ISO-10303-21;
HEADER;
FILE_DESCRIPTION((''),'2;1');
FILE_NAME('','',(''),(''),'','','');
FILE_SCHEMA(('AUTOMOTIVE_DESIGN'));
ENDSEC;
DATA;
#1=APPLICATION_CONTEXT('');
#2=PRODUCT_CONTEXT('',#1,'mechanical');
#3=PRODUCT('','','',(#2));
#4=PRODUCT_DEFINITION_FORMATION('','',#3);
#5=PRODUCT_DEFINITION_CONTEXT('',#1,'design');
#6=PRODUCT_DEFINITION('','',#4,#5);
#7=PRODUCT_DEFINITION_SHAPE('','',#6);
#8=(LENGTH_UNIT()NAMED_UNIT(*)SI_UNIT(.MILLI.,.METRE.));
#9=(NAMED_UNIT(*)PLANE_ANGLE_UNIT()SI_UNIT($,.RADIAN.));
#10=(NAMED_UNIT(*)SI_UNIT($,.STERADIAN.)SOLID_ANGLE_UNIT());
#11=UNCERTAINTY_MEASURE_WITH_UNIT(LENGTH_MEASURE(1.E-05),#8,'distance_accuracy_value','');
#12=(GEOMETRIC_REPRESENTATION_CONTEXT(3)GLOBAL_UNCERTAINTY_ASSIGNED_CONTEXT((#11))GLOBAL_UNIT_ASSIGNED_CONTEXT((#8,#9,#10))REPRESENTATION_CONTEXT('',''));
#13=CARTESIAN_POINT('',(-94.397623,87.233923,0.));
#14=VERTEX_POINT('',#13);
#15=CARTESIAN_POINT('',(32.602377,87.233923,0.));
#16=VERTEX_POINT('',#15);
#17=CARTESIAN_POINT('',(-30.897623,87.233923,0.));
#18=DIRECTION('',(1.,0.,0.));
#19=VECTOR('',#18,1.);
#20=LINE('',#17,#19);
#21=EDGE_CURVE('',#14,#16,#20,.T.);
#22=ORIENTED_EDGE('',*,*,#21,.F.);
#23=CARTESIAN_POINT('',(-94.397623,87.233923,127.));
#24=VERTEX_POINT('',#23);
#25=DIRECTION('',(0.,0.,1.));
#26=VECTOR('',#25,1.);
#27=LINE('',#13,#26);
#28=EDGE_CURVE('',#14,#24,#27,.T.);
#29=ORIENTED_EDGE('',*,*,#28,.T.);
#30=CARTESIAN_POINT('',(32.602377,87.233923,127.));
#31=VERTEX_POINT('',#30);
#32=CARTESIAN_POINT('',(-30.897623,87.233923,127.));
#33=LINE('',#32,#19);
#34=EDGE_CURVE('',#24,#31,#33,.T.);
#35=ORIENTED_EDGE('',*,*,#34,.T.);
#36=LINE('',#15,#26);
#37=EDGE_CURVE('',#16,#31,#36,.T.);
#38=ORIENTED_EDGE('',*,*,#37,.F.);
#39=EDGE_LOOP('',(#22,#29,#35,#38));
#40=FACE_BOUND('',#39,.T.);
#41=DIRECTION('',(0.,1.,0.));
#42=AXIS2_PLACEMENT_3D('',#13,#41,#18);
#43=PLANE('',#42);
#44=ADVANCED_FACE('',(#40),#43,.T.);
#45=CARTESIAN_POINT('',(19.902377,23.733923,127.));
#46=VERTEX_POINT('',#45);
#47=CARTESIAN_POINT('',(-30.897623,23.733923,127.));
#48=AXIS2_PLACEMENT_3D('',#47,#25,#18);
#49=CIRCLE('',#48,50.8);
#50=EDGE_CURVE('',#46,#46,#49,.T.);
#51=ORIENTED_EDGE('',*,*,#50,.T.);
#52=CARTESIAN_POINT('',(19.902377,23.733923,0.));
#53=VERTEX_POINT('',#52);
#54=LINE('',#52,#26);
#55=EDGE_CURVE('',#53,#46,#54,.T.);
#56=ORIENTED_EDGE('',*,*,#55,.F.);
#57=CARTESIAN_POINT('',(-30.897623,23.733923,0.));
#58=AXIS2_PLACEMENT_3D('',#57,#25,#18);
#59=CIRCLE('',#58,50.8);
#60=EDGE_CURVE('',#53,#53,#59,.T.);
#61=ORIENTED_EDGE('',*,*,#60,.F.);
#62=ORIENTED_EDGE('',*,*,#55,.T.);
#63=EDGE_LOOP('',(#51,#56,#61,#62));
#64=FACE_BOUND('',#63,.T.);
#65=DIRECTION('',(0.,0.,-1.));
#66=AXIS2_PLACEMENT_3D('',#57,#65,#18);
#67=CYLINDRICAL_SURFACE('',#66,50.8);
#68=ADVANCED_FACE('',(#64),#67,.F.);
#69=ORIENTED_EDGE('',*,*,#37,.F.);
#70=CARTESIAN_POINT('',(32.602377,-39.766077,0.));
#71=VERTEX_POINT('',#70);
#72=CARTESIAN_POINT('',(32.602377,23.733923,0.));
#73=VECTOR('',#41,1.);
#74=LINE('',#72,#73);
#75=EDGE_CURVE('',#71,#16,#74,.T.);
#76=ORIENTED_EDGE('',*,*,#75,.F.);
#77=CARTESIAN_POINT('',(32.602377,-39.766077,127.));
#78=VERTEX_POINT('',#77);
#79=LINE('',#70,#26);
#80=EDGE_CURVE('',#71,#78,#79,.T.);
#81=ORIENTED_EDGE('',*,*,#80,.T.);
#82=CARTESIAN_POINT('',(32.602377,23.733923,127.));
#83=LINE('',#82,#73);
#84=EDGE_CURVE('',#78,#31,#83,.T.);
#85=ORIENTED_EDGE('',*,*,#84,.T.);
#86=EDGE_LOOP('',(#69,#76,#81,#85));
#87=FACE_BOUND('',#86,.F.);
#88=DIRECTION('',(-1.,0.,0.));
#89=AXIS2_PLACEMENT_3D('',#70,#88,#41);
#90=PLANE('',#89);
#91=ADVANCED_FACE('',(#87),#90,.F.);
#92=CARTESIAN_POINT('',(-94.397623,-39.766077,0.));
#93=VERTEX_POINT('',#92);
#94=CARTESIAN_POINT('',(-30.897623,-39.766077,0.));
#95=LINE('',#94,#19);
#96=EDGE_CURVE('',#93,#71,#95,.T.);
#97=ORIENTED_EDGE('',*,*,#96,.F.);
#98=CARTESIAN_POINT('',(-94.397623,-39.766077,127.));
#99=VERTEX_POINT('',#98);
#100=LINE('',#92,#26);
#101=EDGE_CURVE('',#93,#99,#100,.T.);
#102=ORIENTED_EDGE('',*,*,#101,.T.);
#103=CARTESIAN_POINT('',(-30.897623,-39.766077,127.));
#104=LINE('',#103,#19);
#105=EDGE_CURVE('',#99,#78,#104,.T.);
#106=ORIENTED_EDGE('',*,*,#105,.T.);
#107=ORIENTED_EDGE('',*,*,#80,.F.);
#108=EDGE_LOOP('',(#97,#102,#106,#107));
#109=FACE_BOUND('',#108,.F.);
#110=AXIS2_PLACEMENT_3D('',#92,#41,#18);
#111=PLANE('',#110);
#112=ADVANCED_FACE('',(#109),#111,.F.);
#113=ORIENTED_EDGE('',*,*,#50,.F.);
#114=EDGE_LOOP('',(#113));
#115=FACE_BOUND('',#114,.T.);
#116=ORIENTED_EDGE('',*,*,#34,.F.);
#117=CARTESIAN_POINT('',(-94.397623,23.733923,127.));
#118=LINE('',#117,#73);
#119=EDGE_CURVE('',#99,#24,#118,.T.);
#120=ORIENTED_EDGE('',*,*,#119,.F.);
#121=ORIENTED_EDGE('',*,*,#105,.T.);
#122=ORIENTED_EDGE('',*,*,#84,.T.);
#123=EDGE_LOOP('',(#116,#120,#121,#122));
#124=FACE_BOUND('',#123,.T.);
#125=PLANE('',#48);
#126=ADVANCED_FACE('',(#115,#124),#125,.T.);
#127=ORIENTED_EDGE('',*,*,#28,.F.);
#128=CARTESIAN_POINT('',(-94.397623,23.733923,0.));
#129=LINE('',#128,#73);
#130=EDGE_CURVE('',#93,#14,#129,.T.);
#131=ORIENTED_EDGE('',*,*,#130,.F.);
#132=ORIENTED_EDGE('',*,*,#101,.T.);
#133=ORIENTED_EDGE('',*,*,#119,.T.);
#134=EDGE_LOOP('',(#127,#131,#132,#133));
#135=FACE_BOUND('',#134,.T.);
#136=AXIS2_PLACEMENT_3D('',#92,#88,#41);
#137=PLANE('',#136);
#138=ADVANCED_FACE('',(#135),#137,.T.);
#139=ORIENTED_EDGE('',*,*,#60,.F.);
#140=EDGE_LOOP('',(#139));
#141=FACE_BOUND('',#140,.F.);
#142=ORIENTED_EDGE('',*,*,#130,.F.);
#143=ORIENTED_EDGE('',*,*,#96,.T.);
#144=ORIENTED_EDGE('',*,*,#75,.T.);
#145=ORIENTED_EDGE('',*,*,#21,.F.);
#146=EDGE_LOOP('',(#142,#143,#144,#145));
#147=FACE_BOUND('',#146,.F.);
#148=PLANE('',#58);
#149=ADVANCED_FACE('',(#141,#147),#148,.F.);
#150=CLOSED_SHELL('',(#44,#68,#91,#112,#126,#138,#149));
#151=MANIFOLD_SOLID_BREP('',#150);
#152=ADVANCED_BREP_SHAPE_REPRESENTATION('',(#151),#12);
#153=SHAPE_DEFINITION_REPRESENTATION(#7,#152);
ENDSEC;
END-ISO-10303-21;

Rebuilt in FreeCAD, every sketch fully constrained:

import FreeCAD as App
import Part
import Sketcher

V = App.Vector
Q = App.Units.Quantity

doc = App.newDocument("Part")
body = doc.addObject("PartDesign::Body", "Body")

# Sketch on XY plane
sketch1 = doc.addObject("Sketcher::SketchObject", "Sketch")
body.addObject(sketch1)
sketch1.AttachmentSupport = (doc.XY_Plane, [""])
sketch1.MapMode = "FlatFace"
sketch1.addGeometry([
    Part.LineSegment(V(-94, 87, 0), V(-94, -40, 0)),  # 0
    Part.LineSegment(V(-94, -40, 0), V(33, -40, 0)),  # 1
    Part.LineSegment(V(33, -40, 0), V(33, 87, 0)),  # 2
    Part.LineSegment(V(33, 87, 0), V(-94, 87, 0)),  # 3
    Part.Circle(V(-31, 24, 0), V(0, 0, 1), 51),  # 4
], False)
sketch1.addConstraint([
    Sketcher.Constraint("Coincident", 0, 2, 1, 1),
    Sketcher.Constraint("Coincident", 1, 2, 2, 1),
    Sketcher.Constraint("Coincident", 2, 2, 3, 1),
    Sketcher.Constraint("Coincident", 3, 2, 0, 1),
    Sketcher.Constraint("Vertical", 0),
    Sketcher.Constraint("Horizontal", 1),
    Sketcher.Constraint("Vertical", 2),
    Sketcher.Constraint("Horizontal", 3),
    Sketcher.Constraint("Equal", 3, 0),
    Sketcher.Constraint("Diameter", 4, Q("4 in")),
    Sketcher.Constraint("DistanceX", 1, 1, 1, 2, Q("5 in")),
    Sketcher.Constraint("DistanceX", 0, 2, 4, 3, Q("2.5 in")),
    Sketcher.Constraint("DistanceY", 0, 2, 4, 3, Q("2.5 in")),
    Sketcher.Constraint("DistanceX", 4, 3, -1, 1, Q("30.897623 mm")),
    Sketcher.Constraint("DistanceY", -1, 1, 4, 3, Q("23.733923 mm")),
])
pad1 = doc.addObject("PartDesign::Pad", "Pad")
body.addObject(pad1)
pad1.Profile = sketch1
pad1.Length = Q("5 in")

# Sketch on XY plane
sketch2 = doc.addObject("Sketcher::SketchObject", "Sketch001")
body.addObject(sketch2)
sketch2.AttachmentSupport = (doc.XY_Plane, [""])
sketch2.MapMode = "FlatFace"
sketch2.addGeometry([
    Part.LineSegment(V(-94, 87, 0), V(-94, -40, 0)),  # 0
    Part.LineSegment(V(-94, -40, 0), V(33, -40, 0)),  # 1
    Part.LineSegment(V(33, -40, 0), V(33, 87, 0)),  # 2
    Part.LineSegment(V(33, 87, 0), V(-94, 87, 0)),  # 3
    Part.Circle(V(-31, 24, 0), V(0, 0, 1), 51),  # 4
], False)
sketch2.addConstraint([
    Sketcher.Constraint("Coincident", 0, 2, 1, 1),
    Sketcher.Constraint("Coincident", 1, 2, 2, 1),
    Sketcher.Constraint("Coincident", 2, 2, 3, 1),
    Sketcher.Constraint("Coincident", 3, 2, 0, 1),
    Sketcher.Constraint("Vertical", 0),
    Sketcher.Constraint("Horizontal", 1),
    Sketcher.Constraint("Vertical", 2),
    Sketcher.Constraint("Horizontal", 3),
    Sketcher.Constraint("Equal", 3, 0),
    Sketcher.Constraint("Diameter", 4, Q("4 in")),
    Sketcher.Constraint("DistanceX", 1, 1, 1, 2, Q("5 in")),
    Sketcher.Constraint("DistanceX", 0, 2, 4, 3, Q("2.5 in")),
    Sketcher.Constraint("DistanceY", 0, 2, 4, 3, Q("2.5 in")),
    Sketcher.Constraint("DistanceX", 4, 3, -1, 1, Q("30.897623 mm")),
    Sketcher.Constraint("DistanceY", -1, 1, 4, 3, Q("23.733923 mm")),
])
pad2 = doc.addObject("PartDesign::Pad", "Pad001")
body.addObject(pad2)
pad2.Profile = sketch2
pad2.Length = Q("5 in")

doc.recompute()
